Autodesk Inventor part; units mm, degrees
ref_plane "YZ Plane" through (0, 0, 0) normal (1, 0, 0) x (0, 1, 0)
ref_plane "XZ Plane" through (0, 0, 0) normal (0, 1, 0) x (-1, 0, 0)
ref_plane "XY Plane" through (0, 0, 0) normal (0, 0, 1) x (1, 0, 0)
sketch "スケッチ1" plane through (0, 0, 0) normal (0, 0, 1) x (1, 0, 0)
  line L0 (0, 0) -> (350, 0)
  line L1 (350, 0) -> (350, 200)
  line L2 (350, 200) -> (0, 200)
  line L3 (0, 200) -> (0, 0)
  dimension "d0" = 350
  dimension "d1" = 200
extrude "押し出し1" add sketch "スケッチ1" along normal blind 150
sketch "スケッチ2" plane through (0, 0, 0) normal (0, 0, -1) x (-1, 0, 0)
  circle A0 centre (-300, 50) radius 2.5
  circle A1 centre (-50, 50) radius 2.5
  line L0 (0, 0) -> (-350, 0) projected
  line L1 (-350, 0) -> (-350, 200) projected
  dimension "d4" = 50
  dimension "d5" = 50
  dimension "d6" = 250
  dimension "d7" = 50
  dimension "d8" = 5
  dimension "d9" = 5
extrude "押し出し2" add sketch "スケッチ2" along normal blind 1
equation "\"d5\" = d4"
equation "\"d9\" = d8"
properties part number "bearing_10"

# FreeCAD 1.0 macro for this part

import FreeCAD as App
import Part
import Sketcher
Q = App.Units.Quantity

doc = App.newDocument("Part")
body = doc.addObject("PartDesign::Body", "Body")

# Sketch on XY plane
sketch1 = body.newObject("Sketcher::SketchObject", "Sketch")
sketch1.AttachmentSupport = (doc.getObject("XY_Plane"), [""])
sketch1.MapMode = "FlatFace"
sketch1.addGeometry(Part.LineSegment(App.Vector(0, 200, 0), App.Vector(0, 0, 0)), False)
sketch1.addGeometry(Part.LineSegment(App.Vector(0, 0, 0), App.Vector(350, 0, 0)), False)
sketch1.addGeometry(Part.LineSegment(App.Vector(350, 0, 0), App.Vector(350, 200, 0)), False)
sketch1.addGeometry(Part.LineSegment(App.Vector(350, 200, 0), App.Vector(0, 200, 0)), False)
sketch1.addConstraint(Sketcher.Constraint("Coincident", 0, 2, 1, 1))
sketch1.addConstraint(Sketcher.Constraint("Coincident", 1, 2, 2, 1))
sketch1.addConstraint(Sketcher.Constraint("Coincident", 2, 2, 3, 1))
sketch1.addConstraint(Sketcher.Constraint("Coincident", 3, 2, 0, 1))
sketch1.addConstraint(Sketcher.Constraint("Vertical", 0))
sketch1.addConstraint(Sketcher.Constraint("Horizontal", 1))
sketch1.addConstraint(Sketcher.Constraint("Vertical", 2))
sketch1.addConstraint(Sketcher.Constraint("Horizontal", 3))
sketch1.addConstraint(Sketcher.Constraint("Coincident", 0, 2, -1, 1))
sketch1.addConstraint(Sketcher.Constraint("DistanceX", 1, 1, 1, 2, Q("350 mm")))
sketch1.addConstraint(Sketcher.Constraint("DistanceY", 0, 2, 0, 1, Q("200 mm")))
pad1 = body.newObject("PartDesign::Pad", "Pad")
pad1.Profile = sketch1
pad1.Length = 150

# Sketch on XY plane
sketch2 = body.newObject("Sketcher::SketchObject", "Sketch001")
sketch2.AttachmentSupport = (doc.getObject("XY_Plane"), [""])
sketch2.MapMode = "FlatFace"
sketch2.addGeometry(Part.Circle(App.Vector(300, 50, 0), App.Vector(0, 0, 1), 2.5), False)
sketch2.addGeometry(Part.Circle(App.Vector(50, 50, 0), App.Vector(0, 0, 1), 2.5), False)
sketch2.addConstraint(Sketcher.Constraint("Equal", 0, 1))
sketch2.addConstraint(Sketcher.Constraint("Horizontal", 0, 3, 1, 3))
sketch2.addConstraint(Sketcher.Constraint("Diameter", 0, Q("5 mm")))
sketch2.addConstraint(Sketcher.Constraint("DistanceY", -1, 1, 0, 3, Q("50 mm")))
sketch2.addConstraint(Sketcher.Constraint("DistanceX", -1, 1, 1, 3, Q("50 mm")))
sketch2.addConstraint(Sketcher.Constraint("DistanceX", 1, 3, 0, 3, Q("250 mm")))
pad2 = body.newObject("PartDesign::Pad", "Pad001")
pad2.Profile = sketch2
pad2.Length = 1
pad2.Reversed = True

doc.recompute()
